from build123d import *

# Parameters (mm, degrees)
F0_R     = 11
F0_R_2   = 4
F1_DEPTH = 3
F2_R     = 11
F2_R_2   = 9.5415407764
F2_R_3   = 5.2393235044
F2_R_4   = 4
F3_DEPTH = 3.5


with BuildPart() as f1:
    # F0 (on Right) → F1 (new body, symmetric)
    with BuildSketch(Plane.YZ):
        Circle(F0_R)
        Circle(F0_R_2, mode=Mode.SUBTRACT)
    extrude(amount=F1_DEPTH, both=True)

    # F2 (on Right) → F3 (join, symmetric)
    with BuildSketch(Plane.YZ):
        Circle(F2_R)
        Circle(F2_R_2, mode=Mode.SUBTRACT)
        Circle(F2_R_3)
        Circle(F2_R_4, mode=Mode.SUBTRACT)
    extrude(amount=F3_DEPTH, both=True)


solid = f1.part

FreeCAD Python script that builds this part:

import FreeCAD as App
import Part
import Sketcher
from FreeCAD import Vector

doc = App.newDocument("Part")
params = doc.addObject("Spreadsheet::Sheet", "Params")
for row, (alias, value) in enumerate([
    ("sketch1_diameter", "22 mm"),
    ("sketch1_diameter2", "8 mm"),
    ("pad1_length", "6 mm"),
    ("sketch2_diameter", "22 mm"),
    ("sketch2_diameter2", "8 mm"),
    ("pad2_length", "7 mm"),
], start=1):
    params.set(f"A{row}", alias)
    params.set(f"B{row}", "=" + value)
    params.setAlias(f"B{row}", alias)

body = doc.addObject("PartDesign::Body", "Body")

# Sketch on YZ plane
sketch1 = body.newObject("Sketcher::SketchObject", "Sketch")
sketch1.AttachmentSupport = (doc.getObject("YZ_Plane"), [""])
sketch1.MapMode = "FlatFace"
sketch1.addGeometry([
    Part.Circle(Vector(0, 0, 0), Vector(0, 0, 1), 11),
    Part.Circle(Vector(0, 0, 0), Vector(0, 0, 1), 4),
], False)
sketch1.addConstraint([
    Sketcher.Constraint("Coincident", 0, 3, -1, 1),
    Sketcher.Constraint("Coincident", 1, 3, -1, 1),
    Sketcher.Constraint("Diameter", 0, 22.0),
    Sketcher.Constraint("Diameter", 1, 8.0),
])
sketch1.setExpression("Constraints[2]", "Params.sketch1_diameter")
sketch1.setExpression("Constraints[3]", "Params.sketch1_diameter2")
pad1 = body.newObject("PartDesign::Pad", "Pad")
pad1.Profile = sketch1
pad1.setExpression("Length", "Params.pad1_length")
pad1.Midplane = True

# Sketch on YZ plane
sketch2 = body.newObject("Sketcher::SketchObject", "Sketch001")
sketch2.AttachmentSupport = (doc.getObject("YZ_Plane"), [""])
sketch2.MapMode = "FlatFace"
sketch2.addGeometry([
    Part.Circle(Vector(0, 0, 0), Vector(0, 0, 1), 11),
    Part.Circle(Vector(0, 0, 0), Vector(0, 0, 1), 9.5),
    Part.Circle(Vector(0, 0, 0), Vector(0, 0, 1), 5.2),
    Part.Circle(Vector(0, 0, 0), Vector(0, 0, 1), 4),
], False)
sketch2.addConstraint([
    Sketcher.Constraint("Coincident", 0, 3, -1, 1),
    Sketcher.Constraint("Coincident", 1, 3, -1, 1),
    Sketcher.Constraint("Coincident", 2, 3, -1, 1),
    Sketcher.Constraint("Coincident", 3, 3, -1, 1),
    Sketcher.Constraint("Diameter", 0, 22.0),
    Sketcher.Constraint("Diameter", 3, 8.0),
    Sketcher.Constraint("Diameter", 1, 19.083082),
    Sketcher.Constraint("Diameter", 2, 10.478647),
])
sketch2.setExpression("Constraints[4]", "Params.sketch2_diameter")
sketch2.setExpression("Constraints[5]", "Params.sketch2_diameter2")
pad2 = body.newObject("PartDesign::Pad", "Pad001")
pad2.Profile = sketch2
pad2.setExpression("Length", "Params.pad2_length")
pad2.Midplane = True

doc.recompute()
